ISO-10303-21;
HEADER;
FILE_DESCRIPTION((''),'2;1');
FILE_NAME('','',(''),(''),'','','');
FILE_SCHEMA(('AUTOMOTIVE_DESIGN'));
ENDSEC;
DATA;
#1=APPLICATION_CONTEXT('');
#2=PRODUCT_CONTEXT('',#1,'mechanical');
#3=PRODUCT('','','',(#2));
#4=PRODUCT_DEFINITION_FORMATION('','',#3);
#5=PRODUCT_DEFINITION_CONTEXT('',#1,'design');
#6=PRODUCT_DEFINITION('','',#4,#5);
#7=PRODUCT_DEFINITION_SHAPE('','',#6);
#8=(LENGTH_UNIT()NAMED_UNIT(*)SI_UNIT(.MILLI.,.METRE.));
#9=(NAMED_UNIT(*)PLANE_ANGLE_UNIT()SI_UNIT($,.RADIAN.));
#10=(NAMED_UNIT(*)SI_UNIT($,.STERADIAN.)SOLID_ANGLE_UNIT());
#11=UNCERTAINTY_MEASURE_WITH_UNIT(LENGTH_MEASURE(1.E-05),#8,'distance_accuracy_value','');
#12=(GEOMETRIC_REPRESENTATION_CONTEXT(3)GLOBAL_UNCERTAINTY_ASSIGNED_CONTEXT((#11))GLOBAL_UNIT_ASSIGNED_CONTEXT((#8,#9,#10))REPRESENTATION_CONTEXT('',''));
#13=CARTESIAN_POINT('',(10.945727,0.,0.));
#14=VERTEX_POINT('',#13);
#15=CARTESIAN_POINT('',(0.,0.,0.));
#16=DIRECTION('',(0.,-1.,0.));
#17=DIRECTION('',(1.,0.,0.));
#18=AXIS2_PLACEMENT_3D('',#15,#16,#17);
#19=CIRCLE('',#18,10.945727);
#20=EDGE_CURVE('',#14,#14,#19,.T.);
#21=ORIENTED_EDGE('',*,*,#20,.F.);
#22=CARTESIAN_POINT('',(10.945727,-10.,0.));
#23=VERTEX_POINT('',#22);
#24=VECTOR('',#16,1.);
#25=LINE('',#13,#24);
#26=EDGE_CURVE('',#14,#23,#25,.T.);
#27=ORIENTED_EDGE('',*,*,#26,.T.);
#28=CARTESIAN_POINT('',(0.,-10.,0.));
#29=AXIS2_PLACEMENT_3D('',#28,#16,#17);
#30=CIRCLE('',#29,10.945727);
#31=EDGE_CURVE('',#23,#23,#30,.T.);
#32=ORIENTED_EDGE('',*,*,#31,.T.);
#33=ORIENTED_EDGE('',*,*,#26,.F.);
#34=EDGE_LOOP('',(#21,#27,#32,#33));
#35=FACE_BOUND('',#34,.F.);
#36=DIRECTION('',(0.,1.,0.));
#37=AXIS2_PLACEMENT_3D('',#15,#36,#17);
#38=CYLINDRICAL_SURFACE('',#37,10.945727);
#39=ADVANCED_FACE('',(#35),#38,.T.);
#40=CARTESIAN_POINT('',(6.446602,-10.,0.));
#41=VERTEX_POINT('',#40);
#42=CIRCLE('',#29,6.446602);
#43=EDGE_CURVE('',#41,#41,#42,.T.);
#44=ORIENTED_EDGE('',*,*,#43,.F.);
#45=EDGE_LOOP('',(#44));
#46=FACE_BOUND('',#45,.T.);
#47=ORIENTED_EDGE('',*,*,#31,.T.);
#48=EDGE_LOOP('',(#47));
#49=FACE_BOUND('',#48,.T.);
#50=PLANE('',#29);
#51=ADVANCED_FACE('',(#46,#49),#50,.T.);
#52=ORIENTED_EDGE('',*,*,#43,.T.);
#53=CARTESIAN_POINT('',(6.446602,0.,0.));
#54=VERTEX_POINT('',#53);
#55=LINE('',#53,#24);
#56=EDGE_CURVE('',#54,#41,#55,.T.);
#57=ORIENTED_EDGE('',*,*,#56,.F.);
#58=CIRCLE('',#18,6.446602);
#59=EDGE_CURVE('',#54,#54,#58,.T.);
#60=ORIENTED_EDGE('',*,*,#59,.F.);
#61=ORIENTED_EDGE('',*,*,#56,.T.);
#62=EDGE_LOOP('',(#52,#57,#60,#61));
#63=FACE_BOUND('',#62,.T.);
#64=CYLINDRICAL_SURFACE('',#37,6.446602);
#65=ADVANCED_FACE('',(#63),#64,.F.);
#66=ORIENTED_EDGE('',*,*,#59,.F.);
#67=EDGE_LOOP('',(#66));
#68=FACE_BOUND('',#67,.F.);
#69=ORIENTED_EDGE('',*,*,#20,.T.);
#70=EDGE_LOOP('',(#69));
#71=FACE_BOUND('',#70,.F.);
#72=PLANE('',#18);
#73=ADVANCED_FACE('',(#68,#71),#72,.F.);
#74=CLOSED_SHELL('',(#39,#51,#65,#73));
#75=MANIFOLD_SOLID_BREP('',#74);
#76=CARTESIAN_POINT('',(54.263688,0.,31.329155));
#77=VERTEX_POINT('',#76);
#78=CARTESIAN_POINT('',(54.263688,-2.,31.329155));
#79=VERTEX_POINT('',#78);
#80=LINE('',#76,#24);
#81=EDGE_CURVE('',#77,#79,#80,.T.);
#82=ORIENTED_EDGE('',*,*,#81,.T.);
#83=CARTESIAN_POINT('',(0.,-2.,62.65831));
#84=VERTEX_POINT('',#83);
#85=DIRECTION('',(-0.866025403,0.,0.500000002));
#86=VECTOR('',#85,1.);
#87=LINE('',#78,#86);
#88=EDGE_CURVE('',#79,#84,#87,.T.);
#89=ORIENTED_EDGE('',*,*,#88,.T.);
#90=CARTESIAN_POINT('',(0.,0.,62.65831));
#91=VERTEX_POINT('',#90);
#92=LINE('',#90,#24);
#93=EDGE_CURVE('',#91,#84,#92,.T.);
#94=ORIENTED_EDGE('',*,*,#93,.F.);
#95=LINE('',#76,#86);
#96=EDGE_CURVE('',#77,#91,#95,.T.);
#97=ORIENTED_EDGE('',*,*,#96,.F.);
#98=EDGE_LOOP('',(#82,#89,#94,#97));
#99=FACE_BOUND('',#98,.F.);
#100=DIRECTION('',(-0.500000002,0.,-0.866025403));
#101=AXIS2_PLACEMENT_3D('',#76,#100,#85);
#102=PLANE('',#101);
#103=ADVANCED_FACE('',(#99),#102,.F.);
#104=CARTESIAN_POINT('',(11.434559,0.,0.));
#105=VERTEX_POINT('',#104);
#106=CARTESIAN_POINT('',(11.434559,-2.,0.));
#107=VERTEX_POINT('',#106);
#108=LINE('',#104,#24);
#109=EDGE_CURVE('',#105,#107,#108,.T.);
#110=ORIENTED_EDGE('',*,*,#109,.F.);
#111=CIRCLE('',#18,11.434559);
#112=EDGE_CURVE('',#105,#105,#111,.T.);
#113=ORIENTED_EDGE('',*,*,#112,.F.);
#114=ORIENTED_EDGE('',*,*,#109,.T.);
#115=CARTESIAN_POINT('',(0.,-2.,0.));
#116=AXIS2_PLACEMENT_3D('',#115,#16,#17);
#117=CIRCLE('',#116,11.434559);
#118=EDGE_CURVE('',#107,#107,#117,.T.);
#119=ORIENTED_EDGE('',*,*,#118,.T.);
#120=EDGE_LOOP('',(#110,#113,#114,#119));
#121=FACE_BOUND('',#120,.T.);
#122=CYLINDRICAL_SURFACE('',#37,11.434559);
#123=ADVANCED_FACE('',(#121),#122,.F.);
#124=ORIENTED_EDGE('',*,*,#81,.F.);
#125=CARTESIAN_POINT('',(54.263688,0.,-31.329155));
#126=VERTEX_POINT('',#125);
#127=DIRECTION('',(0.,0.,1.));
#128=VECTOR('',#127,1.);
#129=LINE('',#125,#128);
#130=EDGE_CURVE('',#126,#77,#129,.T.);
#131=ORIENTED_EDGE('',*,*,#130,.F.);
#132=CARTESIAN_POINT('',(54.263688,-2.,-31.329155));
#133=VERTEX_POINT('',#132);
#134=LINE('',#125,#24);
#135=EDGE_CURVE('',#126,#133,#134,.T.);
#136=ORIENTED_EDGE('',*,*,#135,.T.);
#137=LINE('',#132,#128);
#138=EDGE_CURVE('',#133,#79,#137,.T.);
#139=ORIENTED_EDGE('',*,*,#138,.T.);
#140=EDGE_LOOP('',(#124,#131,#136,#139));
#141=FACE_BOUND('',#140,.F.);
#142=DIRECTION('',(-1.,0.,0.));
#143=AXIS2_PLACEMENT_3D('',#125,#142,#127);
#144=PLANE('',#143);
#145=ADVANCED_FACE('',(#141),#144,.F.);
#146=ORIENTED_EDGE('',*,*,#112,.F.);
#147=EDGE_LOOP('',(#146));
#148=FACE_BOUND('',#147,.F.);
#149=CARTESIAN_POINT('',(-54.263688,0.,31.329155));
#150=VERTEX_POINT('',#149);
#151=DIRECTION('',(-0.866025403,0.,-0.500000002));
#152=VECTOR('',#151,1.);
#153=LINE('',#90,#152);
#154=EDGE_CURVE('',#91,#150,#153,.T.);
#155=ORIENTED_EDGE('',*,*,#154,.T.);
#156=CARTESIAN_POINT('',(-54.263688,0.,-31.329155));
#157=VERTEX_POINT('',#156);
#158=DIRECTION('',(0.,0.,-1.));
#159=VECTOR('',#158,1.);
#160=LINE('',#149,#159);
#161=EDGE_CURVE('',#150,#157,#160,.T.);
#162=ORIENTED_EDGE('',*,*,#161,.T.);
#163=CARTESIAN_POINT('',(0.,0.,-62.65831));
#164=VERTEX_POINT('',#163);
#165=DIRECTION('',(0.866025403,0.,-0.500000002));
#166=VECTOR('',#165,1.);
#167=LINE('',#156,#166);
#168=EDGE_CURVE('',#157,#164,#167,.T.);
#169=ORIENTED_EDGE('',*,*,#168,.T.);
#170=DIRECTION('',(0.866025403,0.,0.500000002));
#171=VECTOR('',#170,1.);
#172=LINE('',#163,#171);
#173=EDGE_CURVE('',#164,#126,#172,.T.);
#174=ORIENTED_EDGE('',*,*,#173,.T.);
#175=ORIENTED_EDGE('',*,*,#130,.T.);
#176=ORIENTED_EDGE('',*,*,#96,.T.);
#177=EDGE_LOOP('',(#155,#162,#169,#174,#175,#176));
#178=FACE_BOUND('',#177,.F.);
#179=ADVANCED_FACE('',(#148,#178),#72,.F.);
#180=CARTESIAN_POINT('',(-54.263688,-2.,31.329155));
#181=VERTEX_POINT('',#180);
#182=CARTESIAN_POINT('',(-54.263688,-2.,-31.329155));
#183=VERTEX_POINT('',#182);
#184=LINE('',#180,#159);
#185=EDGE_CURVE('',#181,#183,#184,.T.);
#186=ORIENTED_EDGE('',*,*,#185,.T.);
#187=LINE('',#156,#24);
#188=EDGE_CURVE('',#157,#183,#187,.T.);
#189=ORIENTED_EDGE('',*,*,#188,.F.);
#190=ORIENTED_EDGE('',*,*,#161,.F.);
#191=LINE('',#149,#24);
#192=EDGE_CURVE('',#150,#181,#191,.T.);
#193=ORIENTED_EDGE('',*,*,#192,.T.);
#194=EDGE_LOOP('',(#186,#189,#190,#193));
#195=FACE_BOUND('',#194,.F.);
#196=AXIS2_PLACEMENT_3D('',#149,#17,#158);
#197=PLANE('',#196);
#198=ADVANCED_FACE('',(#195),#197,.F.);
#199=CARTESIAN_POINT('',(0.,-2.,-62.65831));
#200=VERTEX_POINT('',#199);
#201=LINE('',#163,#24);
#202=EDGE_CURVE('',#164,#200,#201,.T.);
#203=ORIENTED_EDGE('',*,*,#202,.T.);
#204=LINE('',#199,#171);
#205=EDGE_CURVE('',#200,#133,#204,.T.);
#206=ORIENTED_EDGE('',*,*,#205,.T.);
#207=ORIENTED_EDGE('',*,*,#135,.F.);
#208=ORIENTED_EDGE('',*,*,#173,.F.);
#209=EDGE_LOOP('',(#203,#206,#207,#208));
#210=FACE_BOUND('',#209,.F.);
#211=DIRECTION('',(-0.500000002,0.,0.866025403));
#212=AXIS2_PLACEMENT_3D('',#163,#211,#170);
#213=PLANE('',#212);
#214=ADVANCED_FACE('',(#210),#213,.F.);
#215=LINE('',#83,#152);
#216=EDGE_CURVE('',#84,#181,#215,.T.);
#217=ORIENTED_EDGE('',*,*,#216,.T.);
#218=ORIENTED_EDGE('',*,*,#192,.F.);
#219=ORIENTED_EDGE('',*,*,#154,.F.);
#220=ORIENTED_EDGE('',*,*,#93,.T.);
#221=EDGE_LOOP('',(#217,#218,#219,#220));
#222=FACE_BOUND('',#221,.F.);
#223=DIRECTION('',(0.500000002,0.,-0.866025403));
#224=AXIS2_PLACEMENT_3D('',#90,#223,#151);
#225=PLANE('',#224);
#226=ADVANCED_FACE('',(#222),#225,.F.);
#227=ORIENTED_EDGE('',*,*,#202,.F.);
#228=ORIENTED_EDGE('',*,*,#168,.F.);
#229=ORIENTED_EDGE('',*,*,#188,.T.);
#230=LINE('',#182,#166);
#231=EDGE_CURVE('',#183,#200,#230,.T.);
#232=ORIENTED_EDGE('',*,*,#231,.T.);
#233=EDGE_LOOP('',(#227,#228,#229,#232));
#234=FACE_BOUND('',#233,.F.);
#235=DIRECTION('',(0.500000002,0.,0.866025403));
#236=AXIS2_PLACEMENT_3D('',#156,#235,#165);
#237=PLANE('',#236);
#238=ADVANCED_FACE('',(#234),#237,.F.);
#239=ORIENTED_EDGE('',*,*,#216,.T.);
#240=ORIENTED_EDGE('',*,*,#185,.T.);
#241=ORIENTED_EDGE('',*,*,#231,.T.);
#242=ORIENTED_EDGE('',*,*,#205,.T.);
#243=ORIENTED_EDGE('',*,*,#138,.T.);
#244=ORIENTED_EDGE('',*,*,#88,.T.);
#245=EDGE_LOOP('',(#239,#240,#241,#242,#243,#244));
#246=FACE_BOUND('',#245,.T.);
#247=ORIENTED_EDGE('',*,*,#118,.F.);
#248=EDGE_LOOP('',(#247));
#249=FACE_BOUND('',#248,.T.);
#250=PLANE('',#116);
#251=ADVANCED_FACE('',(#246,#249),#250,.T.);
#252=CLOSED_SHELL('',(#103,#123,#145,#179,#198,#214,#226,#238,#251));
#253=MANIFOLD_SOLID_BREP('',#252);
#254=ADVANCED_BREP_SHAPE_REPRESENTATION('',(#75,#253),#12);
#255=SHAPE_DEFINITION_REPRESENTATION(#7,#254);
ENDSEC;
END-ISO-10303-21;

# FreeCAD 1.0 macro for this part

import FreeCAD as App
import Part
import Sketcher
from FreeCAD import Vector
Q = App.Units.Quantity

doc = App.newDocument("Part")
body = doc.addObject("PartDesign::Body", "Body")

sketch1 = body.newObject("Sketcher::SketchObject", "Sketch")
sketch1.AttachmentSupport = (doc.getObject("XZ_Plane"), [""])
sketch1.MapMode = "FlatFace"
sketch1.addGeometry([
    Part.LineSegment(Vector(-54, -31, 0), Vector(0, -63, 0)),
    Part.LineSegment(Vector(0, -63, 0), Vector(54, -31, 0)),
    Part.LineSegment(Vector(54, -31, 0), Vector(54, 31, 0)),
    Part.LineSegment(Vector(54, 31, 0), Vector(0, 63, 0)),
    Part.LineSegment(Vector(0, 63, 0), Vector(-54, 31, 0)),
    Part.LineSegment(Vector(-54, 31, 0), Vector(-54, -31, 0)),
    Part.Circle(Vector(0, 0, 0), Vector(0, 0, 1), 11),
], False)
sketch1.addConstraint([
    Sketcher.Constraint("Coincident", 0, 2, 1, 1),
    Sketcher.Constraint("Coincident", 1, 2, 2, 1),
    Sketcher.Constraint("Coincident", 2, 2, 3, 1),
    Sketcher.Constraint("Coincident", 3, 2, 4, 1),
    Sketcher.Constraint("Coincident", 4, 2, 5, 1),
    Sketcher.Constraint("Coincident", 5, 2, 0, 1),
    Sketcher.Constraint("Vertical", 2),
    Sketcher.Constraint("Vertical", 5),
    Sketcher.Constraint("Coincident", 6, 3, -1, 1),
    Sketcher.Constraint("Symmetric", 0, 2, 3, 2, -1, 1),
    Sketcher.Constraint("Symmetric", 1, 2, 4, 2, -1, 1),
    Sketcher.Constraint("PointOnObject", 0, 2, -2),
    Sketcher.Constraint("Parallel", 0, 3),
    Sketcher.Constraint("Horizontal", 2, 2, 4, 2),
    Sketcher.Constraint("Angle", 0, Q("-30 deg")),
    Sketcher.Constraint("Diameter", 6, 22.869118),
    Sketcher.Constraint("DistanceY", 2, 1, 2, 2, 62.65831),
    Sketcher.Constraint("Distance", 0, 62.65831),
])
pad1 = body.newObject("PartDesign::Pad", "Pad")
pad1.Profile = sketch1
pad1.Length = 2
body2 = doc.addObject("PartDesign::Body", "Body001")

sketch2 = body2.newObject("Sketcher::SketchObject", "Sketch001")
sketch2.AttachmentSupport = (doc.getObject("XZ_Plane001"), [""])
sketch2.MapMode = "FlatFace"
sketch2.addGeometry([
    Part.Circle(Vector(0, 0, 0), Vector(0, 0, 1), 11),
    Part.Circle(Vector(0, 0, 0), Vector(0, 0, 1), 6),
], False)
sketch2.addConstraint([
    Sketcher.Constraint("Coincident", 0, 3, -1, 1),
    Sketcher.Constraint("Coincident", 1, 3, -1, 1),
    Sketcher.Constraint("Diameter", 0, 21.891454),
    Sketcher.Constraint("Diameter", 1, 12.893204),
])
pad2 = body2.newObject("PartDesign::Pad", "Pad001")
pad2.Profile = sketch2
pad2.Length = 10

doc.recompute()
